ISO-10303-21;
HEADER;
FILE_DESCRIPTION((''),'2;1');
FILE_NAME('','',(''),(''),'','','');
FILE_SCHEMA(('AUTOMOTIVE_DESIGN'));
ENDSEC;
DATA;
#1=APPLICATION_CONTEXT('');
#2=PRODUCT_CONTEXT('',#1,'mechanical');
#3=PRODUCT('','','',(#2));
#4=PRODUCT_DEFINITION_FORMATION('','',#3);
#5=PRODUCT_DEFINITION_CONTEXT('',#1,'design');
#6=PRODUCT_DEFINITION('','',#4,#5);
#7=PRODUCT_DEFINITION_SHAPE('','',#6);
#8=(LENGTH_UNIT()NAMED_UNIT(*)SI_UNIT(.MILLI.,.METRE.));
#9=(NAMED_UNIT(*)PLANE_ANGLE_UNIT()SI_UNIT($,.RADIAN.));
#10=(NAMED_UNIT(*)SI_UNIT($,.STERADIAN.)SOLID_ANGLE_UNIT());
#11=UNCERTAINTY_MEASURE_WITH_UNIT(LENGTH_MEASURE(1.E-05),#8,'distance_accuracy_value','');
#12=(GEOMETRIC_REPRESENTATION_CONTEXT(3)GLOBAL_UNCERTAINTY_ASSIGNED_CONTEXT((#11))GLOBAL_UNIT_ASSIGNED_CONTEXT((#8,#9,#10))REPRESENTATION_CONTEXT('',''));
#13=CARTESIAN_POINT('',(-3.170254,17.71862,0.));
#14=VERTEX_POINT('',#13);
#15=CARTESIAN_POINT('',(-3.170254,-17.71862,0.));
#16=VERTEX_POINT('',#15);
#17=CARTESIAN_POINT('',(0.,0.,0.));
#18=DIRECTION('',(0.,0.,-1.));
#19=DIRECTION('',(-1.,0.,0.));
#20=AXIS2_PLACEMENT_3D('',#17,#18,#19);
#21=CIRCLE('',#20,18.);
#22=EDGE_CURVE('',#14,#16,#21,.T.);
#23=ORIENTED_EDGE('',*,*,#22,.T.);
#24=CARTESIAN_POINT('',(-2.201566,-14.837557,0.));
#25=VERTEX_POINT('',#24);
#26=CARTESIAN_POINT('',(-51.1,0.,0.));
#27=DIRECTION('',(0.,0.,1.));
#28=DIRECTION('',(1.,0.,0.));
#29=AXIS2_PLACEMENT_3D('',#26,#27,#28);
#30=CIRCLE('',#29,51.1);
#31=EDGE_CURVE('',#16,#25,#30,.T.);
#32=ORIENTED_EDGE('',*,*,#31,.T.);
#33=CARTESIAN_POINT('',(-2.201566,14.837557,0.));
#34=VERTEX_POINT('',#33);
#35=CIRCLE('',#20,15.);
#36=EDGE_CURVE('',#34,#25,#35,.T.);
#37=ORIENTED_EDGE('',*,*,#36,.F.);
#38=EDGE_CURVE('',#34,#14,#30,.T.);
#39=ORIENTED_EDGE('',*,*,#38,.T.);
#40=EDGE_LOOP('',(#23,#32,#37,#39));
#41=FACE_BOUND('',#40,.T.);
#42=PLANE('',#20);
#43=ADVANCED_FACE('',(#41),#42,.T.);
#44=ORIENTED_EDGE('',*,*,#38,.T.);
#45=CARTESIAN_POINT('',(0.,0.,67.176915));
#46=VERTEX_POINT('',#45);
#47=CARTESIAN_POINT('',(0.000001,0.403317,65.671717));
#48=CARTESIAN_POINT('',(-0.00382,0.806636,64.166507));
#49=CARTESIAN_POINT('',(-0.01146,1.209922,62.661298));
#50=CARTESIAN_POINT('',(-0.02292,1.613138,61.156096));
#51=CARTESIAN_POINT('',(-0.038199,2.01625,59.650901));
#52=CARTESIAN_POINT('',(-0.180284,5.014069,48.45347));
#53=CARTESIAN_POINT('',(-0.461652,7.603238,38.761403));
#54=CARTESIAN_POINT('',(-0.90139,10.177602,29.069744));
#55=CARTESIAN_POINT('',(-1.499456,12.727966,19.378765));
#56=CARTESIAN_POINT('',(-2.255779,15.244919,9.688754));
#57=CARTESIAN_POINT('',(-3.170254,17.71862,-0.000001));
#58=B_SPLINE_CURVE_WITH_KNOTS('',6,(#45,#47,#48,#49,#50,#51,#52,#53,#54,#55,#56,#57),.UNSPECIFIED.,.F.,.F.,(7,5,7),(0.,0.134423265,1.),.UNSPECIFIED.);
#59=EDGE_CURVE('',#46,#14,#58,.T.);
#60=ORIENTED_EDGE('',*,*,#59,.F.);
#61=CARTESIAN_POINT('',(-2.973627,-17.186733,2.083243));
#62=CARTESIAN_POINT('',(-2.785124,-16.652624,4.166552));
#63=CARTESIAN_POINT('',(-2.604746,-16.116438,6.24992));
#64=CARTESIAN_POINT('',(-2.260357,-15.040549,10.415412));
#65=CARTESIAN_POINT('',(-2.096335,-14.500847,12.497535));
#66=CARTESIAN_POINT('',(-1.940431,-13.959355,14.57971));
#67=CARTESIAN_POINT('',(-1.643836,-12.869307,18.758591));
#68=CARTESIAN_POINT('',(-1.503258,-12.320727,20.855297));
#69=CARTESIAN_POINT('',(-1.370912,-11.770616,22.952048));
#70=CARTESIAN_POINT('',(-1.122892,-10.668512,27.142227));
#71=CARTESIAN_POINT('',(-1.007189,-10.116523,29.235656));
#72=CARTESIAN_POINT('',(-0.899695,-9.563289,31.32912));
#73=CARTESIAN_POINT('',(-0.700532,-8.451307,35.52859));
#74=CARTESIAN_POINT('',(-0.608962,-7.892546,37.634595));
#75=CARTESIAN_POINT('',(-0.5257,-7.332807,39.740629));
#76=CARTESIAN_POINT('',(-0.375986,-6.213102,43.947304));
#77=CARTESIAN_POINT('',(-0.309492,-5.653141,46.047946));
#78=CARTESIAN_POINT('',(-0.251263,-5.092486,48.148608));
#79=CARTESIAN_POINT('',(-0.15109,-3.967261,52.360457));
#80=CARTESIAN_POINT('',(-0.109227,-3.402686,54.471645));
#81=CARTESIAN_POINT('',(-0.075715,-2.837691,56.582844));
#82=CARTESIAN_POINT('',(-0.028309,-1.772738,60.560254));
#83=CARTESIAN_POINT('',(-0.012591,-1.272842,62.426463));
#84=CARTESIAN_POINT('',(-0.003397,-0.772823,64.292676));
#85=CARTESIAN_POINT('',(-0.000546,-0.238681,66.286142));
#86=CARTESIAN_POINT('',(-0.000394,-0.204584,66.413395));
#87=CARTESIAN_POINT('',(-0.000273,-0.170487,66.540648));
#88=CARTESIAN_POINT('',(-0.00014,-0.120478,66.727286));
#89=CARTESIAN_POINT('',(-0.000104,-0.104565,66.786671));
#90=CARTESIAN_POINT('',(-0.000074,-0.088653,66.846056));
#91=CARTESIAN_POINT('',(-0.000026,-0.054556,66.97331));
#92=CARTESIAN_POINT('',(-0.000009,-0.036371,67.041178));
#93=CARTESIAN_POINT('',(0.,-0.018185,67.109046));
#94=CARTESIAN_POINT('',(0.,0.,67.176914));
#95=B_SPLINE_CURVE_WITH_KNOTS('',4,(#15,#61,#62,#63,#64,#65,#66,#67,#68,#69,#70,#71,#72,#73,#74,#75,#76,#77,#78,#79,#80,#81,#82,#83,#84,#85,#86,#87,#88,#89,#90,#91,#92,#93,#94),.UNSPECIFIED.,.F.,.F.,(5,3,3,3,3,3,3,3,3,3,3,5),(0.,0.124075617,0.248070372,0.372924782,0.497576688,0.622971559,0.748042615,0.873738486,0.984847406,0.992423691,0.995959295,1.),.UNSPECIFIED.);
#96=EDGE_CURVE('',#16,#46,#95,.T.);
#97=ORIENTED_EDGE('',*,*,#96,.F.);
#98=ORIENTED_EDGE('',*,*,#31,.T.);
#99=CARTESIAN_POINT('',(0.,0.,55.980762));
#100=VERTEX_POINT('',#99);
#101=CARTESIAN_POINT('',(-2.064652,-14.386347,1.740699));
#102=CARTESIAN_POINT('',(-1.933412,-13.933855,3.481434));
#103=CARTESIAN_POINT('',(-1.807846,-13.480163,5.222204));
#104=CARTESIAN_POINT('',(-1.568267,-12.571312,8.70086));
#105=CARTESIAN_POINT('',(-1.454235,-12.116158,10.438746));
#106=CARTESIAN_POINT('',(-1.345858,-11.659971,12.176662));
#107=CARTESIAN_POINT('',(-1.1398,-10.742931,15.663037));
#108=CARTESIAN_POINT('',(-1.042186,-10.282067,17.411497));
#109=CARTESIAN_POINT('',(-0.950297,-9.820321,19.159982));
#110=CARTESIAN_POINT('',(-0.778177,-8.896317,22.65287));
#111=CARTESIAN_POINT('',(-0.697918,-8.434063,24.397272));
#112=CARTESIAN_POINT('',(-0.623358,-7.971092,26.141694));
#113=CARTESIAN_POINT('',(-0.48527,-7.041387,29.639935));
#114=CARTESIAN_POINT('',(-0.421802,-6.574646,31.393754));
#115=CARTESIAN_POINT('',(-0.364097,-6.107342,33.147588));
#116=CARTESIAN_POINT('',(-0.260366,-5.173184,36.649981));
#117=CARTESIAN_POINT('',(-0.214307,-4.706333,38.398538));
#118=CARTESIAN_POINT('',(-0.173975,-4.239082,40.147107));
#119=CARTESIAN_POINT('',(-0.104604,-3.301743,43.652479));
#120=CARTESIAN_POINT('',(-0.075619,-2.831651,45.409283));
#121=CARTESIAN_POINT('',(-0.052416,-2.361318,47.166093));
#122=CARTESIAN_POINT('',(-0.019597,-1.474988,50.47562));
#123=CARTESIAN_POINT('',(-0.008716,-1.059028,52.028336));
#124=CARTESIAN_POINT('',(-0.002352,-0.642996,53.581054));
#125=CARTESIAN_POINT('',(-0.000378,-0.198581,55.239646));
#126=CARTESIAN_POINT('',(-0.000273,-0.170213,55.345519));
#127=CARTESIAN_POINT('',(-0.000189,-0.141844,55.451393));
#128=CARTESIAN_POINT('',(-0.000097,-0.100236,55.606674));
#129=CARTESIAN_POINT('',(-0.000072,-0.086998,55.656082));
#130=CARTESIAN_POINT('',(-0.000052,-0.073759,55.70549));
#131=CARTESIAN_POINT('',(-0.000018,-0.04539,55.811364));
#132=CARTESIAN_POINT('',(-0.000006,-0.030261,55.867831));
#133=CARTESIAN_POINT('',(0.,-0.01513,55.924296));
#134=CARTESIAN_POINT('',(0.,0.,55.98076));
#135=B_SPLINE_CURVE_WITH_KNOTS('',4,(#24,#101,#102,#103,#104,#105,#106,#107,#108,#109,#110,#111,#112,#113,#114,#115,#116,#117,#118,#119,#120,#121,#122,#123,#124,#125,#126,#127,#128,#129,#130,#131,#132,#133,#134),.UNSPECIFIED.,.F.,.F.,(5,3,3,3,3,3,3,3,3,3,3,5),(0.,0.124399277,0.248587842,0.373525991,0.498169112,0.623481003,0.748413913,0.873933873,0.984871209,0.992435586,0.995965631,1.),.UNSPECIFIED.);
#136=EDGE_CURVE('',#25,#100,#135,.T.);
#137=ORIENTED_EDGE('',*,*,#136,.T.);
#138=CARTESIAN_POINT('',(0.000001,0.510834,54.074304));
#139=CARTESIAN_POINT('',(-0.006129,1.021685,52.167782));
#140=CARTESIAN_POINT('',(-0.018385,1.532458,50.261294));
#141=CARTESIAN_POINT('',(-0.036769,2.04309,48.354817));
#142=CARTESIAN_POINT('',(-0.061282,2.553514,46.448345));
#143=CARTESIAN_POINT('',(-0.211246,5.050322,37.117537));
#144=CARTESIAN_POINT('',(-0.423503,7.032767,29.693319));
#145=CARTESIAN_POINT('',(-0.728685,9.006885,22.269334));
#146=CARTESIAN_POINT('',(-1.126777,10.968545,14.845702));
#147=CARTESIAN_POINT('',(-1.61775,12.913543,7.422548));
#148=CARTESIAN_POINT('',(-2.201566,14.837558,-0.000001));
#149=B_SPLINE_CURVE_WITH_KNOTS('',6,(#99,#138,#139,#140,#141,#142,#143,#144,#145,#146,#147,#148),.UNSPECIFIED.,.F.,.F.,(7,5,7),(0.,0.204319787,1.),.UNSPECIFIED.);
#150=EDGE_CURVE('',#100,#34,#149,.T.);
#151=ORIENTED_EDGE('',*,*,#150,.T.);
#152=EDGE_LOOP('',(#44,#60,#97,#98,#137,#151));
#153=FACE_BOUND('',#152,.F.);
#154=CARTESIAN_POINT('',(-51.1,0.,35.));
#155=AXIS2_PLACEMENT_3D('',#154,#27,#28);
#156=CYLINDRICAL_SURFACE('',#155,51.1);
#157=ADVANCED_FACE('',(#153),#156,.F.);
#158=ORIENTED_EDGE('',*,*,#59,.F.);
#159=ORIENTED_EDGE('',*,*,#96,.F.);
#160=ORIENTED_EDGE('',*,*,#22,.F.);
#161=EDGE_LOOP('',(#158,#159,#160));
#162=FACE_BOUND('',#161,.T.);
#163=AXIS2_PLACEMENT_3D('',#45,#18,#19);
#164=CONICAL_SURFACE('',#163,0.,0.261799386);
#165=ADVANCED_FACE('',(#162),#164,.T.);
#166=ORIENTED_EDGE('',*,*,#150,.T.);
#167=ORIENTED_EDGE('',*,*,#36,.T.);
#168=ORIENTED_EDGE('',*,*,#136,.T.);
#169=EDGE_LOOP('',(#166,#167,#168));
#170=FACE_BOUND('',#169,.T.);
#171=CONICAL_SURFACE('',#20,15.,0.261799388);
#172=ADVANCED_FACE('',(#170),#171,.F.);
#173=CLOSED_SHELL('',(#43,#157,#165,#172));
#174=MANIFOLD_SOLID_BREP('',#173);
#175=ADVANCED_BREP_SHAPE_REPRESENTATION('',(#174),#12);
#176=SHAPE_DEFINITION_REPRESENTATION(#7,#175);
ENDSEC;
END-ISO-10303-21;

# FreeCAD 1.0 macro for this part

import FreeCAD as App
import Part
import Sketcher
from FreeCAD import Vector
Q = App.Units.Quantity


def add_polygon(sketch, points):
    """Adds a closed chain of lines whose ends are joined by coincident constraints."""
    first, n = sketch.GeometryCount, len(points)
    for a, b in zip(points, points[1:] + points[:1]):
        sketch.addGeometry(Part.LineSegment(App.Vector(*a, 0), App.Vector(*b, 0)), False)
    for i in range(n):
        sketch.addConstraint(Sketcher.Constraint("Coincident", first + i, 2, first + (i + 1) % n, 1))

doc = App.newDocument("Part")
body = doc.addObject("PartDesign::Body", "Body")

# Sketch on XZ plane
sketch1 = body.newObject("Sketcher::SketchObject", "Sketch")
sketch1.AttachmentSupport = (doc.getObject("XZ_Plane"), [""])
sketch1.MapMode = "FlatFace"
add_polygon(sketch1, [(-18, 0), (-15, 0), (0, 55.980762), (0, 67.176915)])  # lines 0-3
sketch1.addConstraint([
    Sketcher.Constraint("Horizontal", 0),
    Sketcher.Constraint("Vertical", 2),
    Sketcher.Constraint("PointOnObject", 0, 2, -1),
    Sketcher.Constraint("PointOnObject", 1, 2, -2),
    Sketcher.Constraint("Parallel", 1, 3),
    Sketcher.Constraint("DistanceX", 0, 1, 0, 2, Q("3 mm")),
    Sketcher.Constraint("Angle", 1, Q("75 deg")),
    Sketcher.Constraint("DistanceX", 0, 2, -1, 1, Q("15 mm")),
])
revolution = body.newObject("PartDesign::Revolution", "Revolution")
revolution.Profile = sketch1
revolution.ReferenceAxis = (sketch1, ["V_Axis"])
revolution.Angle = 360

# Sketch on XZ plane
sketch2 = body.newObject("Sketcher::SketchObject", "Sketch001")
sketch2.AttachmentSupport = (doc.getObject("XZ_Plane"), [""])
sketch2.MapMode = "FlatFace"
add_polygon(sketch2, [(-51.1, 70), (-51.1, 0), (0, 0), (0, 70)])  # lines 0-3
sketch2.addGeometry(Part.LineSegment(Vector(-51.1, 0, 0), Vector(-51.1, 70, 0)), True)  # axis
sketch2.addConstraint([
    Sketcher.Constraint("Vertical", 0),
    Sketcher.Constraint("Horizontal", 1),
    Sketcher.Constraint("Vertical", 2),
    Sketcher.Constraint("Horizontal", 3),
    Sketcher.Constraint("Vertical", 4),
    Sketcher.Constraint("Coincident", 1, 2, -1, 1),
    Sketcher.Constraint("Coincident", 4, 1, 0, 2),
    Sketcher.Constraint("Horizontal", 2, 2, 4, 2),
    Sketcher.Constraint("DistanceY", 0, 2, 0, 1, Q("70 mm")),
    Sketcher.Constraint("DistanceX", 1, 1, 1, 2, Q("51.1 mm")),
])
groove = body.newObject("PartDesign::Groove", "Groove")
groove.Profile = sketch2
groove.ReferenceAxis = (sketch2, ["Axis0"])
groove.Angle = 360

doc.recompute()
